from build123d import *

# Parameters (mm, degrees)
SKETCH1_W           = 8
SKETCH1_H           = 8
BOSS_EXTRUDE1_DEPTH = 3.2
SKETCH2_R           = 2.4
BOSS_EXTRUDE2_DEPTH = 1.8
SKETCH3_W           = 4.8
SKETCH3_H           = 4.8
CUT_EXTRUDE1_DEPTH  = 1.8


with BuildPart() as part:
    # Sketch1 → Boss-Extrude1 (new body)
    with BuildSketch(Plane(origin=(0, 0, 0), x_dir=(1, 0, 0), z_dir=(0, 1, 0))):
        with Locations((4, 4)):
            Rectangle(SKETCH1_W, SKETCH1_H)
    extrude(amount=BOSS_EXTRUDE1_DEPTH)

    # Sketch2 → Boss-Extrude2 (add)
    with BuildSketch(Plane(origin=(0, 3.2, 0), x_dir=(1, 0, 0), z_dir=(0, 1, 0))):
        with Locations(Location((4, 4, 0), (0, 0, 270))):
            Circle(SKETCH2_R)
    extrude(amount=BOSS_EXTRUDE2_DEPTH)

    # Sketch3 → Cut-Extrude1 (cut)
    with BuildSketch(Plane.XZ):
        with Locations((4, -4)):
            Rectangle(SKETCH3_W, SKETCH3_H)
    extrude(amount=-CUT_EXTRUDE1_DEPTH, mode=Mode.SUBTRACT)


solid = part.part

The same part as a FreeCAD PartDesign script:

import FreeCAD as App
import Part
import Sketcher

V = App.Vector
Q = App.Units.Quantity


def add_polygon(sketch, points):
    """Adds a closed chain of lines whose ends are joined by coincident constraints."""
    first, n = sketch.GeometryCount, len(points)
    for a, b in zip(points, points[1:] + points[:1]):
        sketch.addGeometry(Part.LineSegment(App.Vector(*a, 0), App.Vector(*b, 0)), False)
    for i in range(n):
        sketch.addConstraint(Sketcher.Constraint("Coincident", first + i, 2, first + (i + 1) % n, 1))

doc = App.newDocument("Part")
params = doc.addObject("Spreadsheet::Sheet", "Params")
for row, (alias, value) in enumerate([
    ("sketch1_width", "8 mm"),
    ("pad1_length", "3.2 mm"),
    ("sketch2_diameter", "4.8 mm"),
    ("pad2_length", "1.8 mm"),
    ("sketch3_width", "4.8 mm"),
    ("pocket1_length", "1.8 mm"),
], start=1):
    params.set(f"A{row}", alias)
    params.set(f"B{row}", "=" + value)
    params.setAlias(f"B{row}", alias)

body = doc.addObject("PartDesign::Body", "Body")

sketch1 = body.newObject("Sketcher::SketchObject", "Sketch")
sketch1.AttachmentSupport = (doc.getObject("XZ_Plane"), [""])
sketch1.MapMode = "FlatFace"
add_polygon(sketch1, [(0, -8), (0, 0), (8, 0), (8, -8)])
sketch1.addConstraint([
    Sketcher.Constraint("Vertical", 0),
    Sketcher.Constraint("Horizontal", 1),
    Sketcher.Constraint("Vertical", 2),
    Sketcher.Constraint("Horizontal", 3),
    Sketcher.Constraint("Coincident", 0, 2, -1, 1),
    Sketcher.Constraint("Equal", 3, 0),
    Sketcher.Constraint("DistanceX", 1, 1, 1, 2, Q("8 mm")),
])
sketch1.setExpression("Constraints[10]", "Params.sketch1_width")
pad1 = body.newObject("PartDesign::Pad", "Pad")
pad1.Profile = sketch1
pad1.setExpression("Length", "Params.pad1_length")
pad1.Reversed = True

sketch2 = body.newObject("Sketcher::SketchObject", "Sketch001")
sketch2.AttachmentSupport = (doc.getObject("XZ_Plane"), [""])
sketch2.MapMode = "FlatFace"
sketch2.AttachmentOffset = App.Placement(V(0, 0, -3.2), App.Rotation())
sketch2.addGeometry(Part.Circle(V(4, -4, 0), V(0, 0, 1), 2.4), False)
sketch2.addConstraint([
    Sketcher.Constraint("Diameter", 0, Q("4.8 mm")),
    Sketcher.Constraint("DistanceX", -1, 1, 0, 3, Q("4 mm")),
    Sketcher.Constraint("DistanceY", 0, 3, -1, 1, Q("4 mm")),
])
sketch2.setExpression("Constraints[0]", "Params.sketch2_diameter")
pad2 = body.newObject("PartDesign::Pad", "Pad001")
pad2.Profile = sketch2
pad2.setExpression("Length", "Params.pad2_length")
pad2.Reversed = True

sketch3 = body.newObject("Sketcher::SketchObject", "Sketch002")
sketch3.AttachmentSupport = (doc.getObject("XZ_Plane"), [""])
sketch3.MapMode = "FlatFace"
add_polygon(sketch3, [(1.6, -1.6), (1.6, -6.4), (6.4, -6.4), (6.4, -1.6)])
sketch3.addConstraint([
    Sketcher.Constraint("Vertical", 0),
    Sketcher.Constraint("Horizontal", 1),
    Sketcher.Constraint("Vertical", 2),
    Sketcher.Constraint("Horizontal", 3),
    Sketcher.Constraint("Equal", 3, 0),
    Sketcher.Constraint("DistanceX", 1, 1, 1, 2, Q("4.8 mm")),
    Sketcher.Constraint("DistanceX", -1, 1, 0, 2, Q("1.6 mm")),
    Sketcher.Constraint("DistanceY", 0, 2, -1, 1, Q("6.4 mm")),
])
sketch3.setExpression("Constraints[9]", "Params.sketch3_width")
pocket1 = body.newObject("PartDesign::Pocket", "Pocket")
pocket1.Profile = sketch3
pocket1.setExpression("Length", "Params.pocket1_length")

doc.recompute()
